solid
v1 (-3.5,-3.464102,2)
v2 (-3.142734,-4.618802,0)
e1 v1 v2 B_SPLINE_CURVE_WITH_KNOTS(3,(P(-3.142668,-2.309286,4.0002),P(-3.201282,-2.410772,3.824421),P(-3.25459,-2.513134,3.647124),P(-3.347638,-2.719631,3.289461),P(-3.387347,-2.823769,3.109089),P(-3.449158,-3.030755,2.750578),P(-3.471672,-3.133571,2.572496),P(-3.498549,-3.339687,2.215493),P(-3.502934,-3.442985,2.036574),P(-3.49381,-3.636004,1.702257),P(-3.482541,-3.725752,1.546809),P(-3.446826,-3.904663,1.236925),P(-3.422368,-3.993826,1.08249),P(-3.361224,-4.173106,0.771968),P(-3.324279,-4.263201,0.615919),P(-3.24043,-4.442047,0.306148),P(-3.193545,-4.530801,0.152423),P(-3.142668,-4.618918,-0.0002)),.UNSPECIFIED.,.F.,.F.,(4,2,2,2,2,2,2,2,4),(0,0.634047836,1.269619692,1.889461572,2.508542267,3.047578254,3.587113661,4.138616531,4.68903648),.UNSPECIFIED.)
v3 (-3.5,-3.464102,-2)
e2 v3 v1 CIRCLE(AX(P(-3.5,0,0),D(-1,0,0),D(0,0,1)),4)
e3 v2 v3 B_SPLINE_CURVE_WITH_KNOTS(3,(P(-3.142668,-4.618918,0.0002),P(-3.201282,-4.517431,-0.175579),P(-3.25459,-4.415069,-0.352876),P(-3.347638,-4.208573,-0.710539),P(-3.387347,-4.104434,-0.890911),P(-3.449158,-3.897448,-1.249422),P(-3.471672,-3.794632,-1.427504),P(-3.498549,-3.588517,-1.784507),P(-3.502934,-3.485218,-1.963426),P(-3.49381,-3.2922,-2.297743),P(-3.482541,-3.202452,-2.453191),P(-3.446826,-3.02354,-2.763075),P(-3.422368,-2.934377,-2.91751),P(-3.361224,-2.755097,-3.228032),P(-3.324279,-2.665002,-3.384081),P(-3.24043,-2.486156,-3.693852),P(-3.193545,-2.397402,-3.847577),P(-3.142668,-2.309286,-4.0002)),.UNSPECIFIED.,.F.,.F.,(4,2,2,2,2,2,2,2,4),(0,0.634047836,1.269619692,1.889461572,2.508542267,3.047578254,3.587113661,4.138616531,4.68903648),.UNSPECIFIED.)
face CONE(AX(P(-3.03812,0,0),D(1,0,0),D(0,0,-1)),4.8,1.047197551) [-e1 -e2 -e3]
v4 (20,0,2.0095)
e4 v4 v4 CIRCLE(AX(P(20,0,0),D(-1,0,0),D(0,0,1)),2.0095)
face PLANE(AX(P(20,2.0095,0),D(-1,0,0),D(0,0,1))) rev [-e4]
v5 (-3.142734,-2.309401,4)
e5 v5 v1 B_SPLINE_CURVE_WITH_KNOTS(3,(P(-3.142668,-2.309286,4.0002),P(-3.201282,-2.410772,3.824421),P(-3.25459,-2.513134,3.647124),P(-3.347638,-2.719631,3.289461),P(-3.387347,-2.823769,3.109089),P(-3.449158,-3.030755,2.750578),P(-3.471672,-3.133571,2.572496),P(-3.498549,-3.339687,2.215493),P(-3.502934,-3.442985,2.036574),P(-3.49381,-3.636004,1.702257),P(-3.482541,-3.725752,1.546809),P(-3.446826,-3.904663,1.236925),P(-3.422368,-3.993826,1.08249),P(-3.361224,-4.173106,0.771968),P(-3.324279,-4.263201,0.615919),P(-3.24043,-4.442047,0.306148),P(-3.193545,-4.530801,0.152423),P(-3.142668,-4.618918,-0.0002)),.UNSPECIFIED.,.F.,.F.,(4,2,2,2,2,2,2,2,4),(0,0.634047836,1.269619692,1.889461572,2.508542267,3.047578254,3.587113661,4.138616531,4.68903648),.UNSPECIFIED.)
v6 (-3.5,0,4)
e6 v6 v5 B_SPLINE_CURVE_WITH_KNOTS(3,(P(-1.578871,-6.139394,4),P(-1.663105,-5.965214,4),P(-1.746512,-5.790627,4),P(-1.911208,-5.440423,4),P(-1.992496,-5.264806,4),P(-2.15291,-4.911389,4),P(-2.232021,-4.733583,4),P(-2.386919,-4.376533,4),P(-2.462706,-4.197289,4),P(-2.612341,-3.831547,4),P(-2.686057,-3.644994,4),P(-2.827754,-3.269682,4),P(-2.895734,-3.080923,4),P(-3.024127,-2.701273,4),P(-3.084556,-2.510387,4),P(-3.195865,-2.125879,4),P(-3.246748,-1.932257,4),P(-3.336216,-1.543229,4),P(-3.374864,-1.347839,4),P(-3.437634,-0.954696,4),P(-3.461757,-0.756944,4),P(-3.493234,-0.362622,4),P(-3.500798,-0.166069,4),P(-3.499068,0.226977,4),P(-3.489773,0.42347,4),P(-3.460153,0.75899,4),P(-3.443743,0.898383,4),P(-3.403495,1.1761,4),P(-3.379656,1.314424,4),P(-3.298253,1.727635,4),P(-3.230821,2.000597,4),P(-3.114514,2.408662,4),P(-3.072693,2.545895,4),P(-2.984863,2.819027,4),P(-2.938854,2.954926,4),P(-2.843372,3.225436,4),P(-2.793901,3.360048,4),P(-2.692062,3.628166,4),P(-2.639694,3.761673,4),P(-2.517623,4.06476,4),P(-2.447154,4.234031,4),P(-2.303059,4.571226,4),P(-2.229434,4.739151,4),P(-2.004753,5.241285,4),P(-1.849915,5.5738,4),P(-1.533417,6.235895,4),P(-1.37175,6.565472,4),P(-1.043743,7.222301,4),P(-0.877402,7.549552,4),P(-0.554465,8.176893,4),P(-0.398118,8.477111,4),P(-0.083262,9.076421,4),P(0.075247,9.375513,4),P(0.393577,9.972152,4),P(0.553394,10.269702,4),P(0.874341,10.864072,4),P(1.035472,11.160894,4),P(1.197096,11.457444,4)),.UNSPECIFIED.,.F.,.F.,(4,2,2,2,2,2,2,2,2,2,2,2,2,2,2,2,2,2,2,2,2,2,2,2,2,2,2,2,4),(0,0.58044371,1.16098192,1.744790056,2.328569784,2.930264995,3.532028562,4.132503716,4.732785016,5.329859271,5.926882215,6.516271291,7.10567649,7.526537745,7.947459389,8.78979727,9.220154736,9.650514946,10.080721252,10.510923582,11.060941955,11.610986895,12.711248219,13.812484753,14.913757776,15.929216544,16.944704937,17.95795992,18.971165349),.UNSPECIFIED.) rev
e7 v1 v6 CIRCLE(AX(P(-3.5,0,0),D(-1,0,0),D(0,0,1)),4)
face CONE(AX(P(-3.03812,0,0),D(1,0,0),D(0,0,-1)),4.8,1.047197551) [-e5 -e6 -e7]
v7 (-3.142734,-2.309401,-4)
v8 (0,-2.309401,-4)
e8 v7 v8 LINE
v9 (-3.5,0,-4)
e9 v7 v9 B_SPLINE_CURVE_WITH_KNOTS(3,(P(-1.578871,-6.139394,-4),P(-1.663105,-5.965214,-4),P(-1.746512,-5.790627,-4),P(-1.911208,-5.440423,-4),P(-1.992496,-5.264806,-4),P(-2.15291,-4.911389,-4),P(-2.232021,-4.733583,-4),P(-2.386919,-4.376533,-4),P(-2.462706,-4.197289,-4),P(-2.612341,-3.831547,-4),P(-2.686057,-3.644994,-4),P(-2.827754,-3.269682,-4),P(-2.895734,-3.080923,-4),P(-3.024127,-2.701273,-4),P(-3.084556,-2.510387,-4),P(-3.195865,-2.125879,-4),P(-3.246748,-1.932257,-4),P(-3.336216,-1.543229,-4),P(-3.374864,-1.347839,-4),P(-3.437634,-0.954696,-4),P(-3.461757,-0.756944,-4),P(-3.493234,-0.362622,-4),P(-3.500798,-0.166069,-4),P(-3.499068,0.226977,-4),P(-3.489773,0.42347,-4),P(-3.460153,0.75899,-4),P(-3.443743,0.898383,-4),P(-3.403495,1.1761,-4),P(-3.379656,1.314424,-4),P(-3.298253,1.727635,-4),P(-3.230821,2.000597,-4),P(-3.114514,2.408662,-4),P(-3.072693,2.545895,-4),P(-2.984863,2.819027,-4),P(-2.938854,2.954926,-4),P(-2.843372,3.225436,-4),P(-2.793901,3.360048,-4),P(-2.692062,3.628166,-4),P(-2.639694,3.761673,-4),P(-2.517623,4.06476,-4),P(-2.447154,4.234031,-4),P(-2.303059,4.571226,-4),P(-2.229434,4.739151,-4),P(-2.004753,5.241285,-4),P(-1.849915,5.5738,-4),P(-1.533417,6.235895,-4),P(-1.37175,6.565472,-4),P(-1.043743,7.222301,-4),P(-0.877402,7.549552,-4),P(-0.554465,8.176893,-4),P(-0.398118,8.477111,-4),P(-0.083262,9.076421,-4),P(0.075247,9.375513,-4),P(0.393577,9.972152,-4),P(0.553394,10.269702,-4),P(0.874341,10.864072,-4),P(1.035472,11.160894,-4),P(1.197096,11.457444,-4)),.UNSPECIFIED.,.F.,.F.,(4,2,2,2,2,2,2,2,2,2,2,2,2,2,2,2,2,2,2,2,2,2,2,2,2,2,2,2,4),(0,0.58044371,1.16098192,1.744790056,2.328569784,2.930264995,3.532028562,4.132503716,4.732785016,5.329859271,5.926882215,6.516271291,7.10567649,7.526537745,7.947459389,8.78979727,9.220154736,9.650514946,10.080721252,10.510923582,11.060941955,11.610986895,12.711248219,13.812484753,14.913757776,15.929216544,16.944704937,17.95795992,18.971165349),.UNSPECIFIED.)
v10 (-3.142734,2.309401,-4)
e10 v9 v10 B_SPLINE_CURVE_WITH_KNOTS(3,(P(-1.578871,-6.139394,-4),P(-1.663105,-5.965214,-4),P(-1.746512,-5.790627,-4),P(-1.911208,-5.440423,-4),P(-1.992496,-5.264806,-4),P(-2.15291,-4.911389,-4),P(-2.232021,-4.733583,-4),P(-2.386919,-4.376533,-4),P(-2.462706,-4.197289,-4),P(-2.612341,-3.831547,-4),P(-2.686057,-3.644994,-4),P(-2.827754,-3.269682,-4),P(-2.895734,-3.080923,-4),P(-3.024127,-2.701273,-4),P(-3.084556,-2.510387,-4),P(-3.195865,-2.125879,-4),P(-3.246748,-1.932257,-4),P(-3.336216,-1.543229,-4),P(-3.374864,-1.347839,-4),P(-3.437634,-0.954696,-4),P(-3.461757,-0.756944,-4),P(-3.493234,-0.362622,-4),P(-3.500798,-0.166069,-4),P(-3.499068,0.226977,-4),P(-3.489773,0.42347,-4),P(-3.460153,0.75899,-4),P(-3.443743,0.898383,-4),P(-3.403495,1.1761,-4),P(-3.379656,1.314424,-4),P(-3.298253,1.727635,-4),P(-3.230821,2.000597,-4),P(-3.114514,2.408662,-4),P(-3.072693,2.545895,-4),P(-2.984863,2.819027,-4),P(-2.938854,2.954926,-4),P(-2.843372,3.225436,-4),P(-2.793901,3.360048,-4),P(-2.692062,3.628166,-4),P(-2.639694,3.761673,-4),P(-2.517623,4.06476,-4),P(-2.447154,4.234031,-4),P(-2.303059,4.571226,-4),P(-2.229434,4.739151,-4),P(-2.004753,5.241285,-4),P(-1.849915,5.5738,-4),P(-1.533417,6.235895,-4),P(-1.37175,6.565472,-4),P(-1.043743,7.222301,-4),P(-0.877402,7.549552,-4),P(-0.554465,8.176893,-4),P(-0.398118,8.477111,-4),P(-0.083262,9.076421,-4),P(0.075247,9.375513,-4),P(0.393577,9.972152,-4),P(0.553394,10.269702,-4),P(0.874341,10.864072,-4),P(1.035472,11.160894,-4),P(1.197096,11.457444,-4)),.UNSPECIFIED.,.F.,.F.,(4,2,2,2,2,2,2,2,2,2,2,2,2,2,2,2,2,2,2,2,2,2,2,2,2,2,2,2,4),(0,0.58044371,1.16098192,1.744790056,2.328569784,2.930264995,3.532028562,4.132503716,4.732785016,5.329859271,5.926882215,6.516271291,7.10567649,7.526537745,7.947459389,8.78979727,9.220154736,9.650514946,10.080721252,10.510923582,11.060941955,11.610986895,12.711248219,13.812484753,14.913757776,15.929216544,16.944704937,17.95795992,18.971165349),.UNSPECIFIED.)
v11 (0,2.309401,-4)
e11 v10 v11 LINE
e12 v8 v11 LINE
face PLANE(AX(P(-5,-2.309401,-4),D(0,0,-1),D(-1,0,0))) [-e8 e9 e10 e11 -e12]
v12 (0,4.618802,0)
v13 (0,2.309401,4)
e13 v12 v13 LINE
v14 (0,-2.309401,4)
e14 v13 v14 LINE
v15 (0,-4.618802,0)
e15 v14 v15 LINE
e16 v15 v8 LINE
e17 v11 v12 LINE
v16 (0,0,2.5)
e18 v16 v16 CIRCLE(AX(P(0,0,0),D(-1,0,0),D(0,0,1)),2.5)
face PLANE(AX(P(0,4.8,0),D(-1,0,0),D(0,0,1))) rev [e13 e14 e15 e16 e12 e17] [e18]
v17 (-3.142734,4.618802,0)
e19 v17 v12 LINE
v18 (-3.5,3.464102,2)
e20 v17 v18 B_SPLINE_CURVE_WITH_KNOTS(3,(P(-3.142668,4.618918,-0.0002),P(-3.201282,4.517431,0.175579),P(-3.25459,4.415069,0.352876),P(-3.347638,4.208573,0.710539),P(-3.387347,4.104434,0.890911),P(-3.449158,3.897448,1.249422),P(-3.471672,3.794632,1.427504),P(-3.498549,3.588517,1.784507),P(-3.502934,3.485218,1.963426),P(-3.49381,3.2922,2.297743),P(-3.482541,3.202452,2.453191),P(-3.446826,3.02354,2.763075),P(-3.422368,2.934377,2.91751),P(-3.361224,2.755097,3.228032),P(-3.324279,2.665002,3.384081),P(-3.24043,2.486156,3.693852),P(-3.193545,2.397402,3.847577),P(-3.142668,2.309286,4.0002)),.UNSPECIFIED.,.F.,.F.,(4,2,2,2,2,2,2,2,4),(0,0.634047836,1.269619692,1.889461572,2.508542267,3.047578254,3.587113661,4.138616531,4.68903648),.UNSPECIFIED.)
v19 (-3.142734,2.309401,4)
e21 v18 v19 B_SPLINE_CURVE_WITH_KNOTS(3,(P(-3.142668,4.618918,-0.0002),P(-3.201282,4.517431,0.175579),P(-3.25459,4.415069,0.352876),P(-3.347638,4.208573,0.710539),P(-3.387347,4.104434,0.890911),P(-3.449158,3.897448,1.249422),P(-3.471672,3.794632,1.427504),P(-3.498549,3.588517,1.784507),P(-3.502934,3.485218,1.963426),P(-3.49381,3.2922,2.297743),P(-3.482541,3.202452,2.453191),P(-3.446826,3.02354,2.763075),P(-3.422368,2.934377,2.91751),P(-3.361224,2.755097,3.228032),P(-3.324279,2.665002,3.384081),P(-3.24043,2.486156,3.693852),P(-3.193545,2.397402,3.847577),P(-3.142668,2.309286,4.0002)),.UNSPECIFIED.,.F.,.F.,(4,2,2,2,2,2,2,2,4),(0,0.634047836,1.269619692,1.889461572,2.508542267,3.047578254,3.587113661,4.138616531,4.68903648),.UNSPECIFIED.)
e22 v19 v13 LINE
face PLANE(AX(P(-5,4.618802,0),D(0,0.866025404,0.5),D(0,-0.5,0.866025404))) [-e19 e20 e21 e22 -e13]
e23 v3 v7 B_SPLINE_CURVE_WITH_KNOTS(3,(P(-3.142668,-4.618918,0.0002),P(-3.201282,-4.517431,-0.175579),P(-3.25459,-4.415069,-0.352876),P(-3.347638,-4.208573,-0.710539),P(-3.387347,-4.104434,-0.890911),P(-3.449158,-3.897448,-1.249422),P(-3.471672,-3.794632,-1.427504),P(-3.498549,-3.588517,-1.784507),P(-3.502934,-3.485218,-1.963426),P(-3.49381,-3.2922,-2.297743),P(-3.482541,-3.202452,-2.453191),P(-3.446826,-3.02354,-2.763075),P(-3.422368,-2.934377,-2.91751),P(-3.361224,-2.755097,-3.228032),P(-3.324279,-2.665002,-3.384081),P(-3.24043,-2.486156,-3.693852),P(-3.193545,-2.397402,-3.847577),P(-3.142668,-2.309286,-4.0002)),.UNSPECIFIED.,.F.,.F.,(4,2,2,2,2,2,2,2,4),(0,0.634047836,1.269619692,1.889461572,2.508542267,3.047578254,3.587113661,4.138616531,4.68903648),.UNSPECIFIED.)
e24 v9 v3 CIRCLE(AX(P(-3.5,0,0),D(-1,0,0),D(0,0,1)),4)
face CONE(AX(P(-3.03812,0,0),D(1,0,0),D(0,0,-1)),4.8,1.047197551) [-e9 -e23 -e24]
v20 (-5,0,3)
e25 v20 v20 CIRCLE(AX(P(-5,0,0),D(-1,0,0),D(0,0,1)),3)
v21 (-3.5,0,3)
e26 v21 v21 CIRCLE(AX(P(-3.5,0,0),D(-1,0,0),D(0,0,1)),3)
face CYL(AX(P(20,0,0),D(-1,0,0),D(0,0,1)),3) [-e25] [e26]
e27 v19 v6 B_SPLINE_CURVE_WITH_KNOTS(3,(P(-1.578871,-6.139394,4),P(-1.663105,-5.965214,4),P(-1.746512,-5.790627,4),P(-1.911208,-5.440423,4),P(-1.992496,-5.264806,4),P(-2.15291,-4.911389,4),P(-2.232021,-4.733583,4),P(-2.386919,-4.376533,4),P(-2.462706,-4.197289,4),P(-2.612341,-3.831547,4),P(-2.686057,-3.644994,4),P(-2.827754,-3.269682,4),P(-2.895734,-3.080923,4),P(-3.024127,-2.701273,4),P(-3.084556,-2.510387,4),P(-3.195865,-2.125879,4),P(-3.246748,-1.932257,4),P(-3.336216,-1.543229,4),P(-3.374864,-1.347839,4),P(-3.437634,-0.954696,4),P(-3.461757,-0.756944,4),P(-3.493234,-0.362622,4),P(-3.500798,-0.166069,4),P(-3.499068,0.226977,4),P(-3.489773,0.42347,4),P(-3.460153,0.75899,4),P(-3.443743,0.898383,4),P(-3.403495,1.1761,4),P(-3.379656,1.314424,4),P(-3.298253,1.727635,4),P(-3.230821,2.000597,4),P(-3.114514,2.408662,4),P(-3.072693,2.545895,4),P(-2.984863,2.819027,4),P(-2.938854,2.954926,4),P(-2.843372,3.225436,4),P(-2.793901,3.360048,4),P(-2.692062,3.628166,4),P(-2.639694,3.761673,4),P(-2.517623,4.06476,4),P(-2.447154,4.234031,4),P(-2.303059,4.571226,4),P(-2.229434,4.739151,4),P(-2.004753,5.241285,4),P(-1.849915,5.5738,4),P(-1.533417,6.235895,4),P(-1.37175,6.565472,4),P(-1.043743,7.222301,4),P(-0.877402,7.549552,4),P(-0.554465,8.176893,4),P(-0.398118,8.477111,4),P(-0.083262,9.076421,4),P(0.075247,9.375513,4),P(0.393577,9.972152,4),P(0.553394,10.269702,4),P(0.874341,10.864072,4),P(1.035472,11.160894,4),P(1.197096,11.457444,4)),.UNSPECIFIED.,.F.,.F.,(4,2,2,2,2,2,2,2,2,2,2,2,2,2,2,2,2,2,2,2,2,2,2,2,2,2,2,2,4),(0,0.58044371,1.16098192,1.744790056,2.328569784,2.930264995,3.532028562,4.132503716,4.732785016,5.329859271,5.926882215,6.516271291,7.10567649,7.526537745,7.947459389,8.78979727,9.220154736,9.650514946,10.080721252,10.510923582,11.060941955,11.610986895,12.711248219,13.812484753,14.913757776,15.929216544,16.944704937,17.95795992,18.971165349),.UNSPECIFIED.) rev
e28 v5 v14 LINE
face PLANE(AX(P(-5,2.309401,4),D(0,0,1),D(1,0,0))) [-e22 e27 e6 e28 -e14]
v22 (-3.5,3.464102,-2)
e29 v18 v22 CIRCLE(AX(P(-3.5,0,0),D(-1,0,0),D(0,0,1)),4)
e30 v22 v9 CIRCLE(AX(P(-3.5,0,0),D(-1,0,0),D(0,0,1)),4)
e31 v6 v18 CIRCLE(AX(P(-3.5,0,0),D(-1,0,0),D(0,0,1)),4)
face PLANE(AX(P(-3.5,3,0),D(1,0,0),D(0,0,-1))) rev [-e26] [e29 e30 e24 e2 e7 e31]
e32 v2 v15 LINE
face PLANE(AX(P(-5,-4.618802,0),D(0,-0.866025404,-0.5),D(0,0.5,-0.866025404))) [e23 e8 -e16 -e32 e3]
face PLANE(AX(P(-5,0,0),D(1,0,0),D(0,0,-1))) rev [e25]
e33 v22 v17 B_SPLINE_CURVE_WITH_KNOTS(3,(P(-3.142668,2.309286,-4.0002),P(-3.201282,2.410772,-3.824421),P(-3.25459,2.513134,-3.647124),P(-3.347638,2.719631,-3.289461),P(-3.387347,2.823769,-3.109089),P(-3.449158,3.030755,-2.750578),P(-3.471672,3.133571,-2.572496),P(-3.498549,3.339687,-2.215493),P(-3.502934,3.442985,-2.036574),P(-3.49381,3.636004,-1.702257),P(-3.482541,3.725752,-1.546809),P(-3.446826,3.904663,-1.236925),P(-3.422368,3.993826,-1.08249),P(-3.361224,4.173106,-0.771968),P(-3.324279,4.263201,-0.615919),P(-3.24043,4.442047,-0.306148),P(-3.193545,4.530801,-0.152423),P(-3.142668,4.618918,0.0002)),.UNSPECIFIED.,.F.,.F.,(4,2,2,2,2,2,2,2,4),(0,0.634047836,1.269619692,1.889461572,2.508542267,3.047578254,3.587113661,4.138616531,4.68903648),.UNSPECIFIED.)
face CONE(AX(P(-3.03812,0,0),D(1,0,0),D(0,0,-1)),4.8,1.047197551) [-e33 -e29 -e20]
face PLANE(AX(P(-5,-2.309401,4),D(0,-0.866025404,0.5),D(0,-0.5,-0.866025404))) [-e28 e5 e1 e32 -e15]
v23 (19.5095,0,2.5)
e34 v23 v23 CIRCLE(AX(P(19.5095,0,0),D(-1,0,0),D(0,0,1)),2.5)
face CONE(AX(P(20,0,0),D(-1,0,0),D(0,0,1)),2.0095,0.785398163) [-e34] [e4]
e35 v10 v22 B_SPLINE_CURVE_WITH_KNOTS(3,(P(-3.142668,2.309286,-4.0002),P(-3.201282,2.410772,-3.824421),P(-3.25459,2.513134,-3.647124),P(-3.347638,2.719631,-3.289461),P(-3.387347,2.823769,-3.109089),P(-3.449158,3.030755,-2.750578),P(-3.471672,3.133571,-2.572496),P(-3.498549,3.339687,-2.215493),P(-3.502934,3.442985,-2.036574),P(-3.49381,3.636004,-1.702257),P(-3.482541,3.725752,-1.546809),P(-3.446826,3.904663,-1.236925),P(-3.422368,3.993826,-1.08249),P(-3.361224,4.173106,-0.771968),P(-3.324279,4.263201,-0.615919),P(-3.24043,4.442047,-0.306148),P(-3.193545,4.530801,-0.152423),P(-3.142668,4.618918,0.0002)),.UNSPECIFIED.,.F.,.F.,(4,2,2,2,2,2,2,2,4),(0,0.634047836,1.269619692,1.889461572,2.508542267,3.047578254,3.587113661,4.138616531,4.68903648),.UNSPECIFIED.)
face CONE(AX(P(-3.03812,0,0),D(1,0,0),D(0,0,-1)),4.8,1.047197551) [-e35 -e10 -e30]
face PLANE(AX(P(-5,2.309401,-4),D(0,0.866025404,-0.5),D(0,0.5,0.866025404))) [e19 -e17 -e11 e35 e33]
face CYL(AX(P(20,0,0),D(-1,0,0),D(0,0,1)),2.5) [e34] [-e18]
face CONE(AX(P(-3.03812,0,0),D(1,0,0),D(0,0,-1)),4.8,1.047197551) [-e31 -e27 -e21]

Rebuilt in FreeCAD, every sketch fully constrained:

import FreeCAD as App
import Part
import Sketcher
Q = App.Units.Quantity

doc = App.newDocument("Part")
body = doc.addObject("PartDesign::Body", "Body")

# Sketch on XY plane
sketch1 = body.newObject("Sketcher::SketchObject", "Sketch")
sketch1.AttachmentSupport = (doc.getObject("XY_Plane"), [""])
sketch1.MapMode = "FlatFace"
sketch1.addGeometry(Part.LineSegment(App.Vector(-5, 3, 0), App.Vector(-5, 0, 0)), False)
sketch1.addGeometry(Part.LineSegment(App.Vector(-5, 0, 0), App.Vector(20, 0, 0)), False)
sketch1.addGeometry(Part.LineSegment(App.Vector(20, 0, 0), App.Vector(20, 2, 0)), False)
sketch1.addGeometry(Part.LineSegment(App.Vector(20, 2, 0), App.Vector(19.5, 2.5, 0)), False)
sketch1.addGeometry(Part.LineSegment(App.Vector(19.5, 2.5, 0), App.Vector(0, 2.5, 0)), False)
sketch1.addGeometry(Part.LineSegment(App.Vector(0, 2.5, 0), App.Vector(0, 4.8, 0)), False)
sketch1.addGeometry(Part.LineSegment(App.Vector(0, 4.8, 0), App.Vector(-3, 4.8, 0)), False)
sketch1.addGeometry(Part.LineSegment(App.Vector(-3, 4.8, 0), App.Vector(-3.5, 4, 0)), False)
sketch1.addGeometry(Part.LineSegment(App.Vector(-3.5, 4, 0), App.Vector(-3.5, 3, 0)), False)
sketch1.addGeometry(Part.LineSegment(App.Vector(-3.5, 3, 0), App.Vector(-5, 3, 0)), False)
sketch1.addConstraint(Sketcher.Constraint("Coincident", 0, 2, 1, 1))
sketch1.addConstraint(Sketcher.Constraint("Coincident", 1, 2, 2, 1))
sketch1.addConstraint(Sketcher.Constraint("Coincident", 2, 2, 3, 1))
sketch1.addConstraint(Sketcher.Constraint("Coincident", 3, 2, 4, 1))
sketch1.addConstraint(Sketcher.Constraint("Coincident", 4, 2, 5, 1))
sketch1.addConstraint(Sketcher.Constraint("Coincident", 5, 2, 6, 1))
sketch1.addConstraint(Sketcher.Constraint("Coincident", 6, 2, 7, 1))
sketch1.addConstraint(Sketcher.Constraint("Coincident", 7, 2, 8, 1))
sketch1.addConstraint(Sketcher.Constraint("Coincident", 8, 2, 9, 1))
sketch1.addConstraint(Sketcher.Constraint("Coincident", 9, 2, 0, 1))
sketch1.addConstraint(Sketcher.Constraint("Vertical", 0))
sketch1.addConstraint(Sketcher.Constraint("Horizontal", 1))
sketch1.addConstraint(Sketcher.Constraint("Vertical", 2))
sketch1.addConstraint(Sketcher.Constraint("Horizontal", 4))
sketch1.addConstraint(Sketcher.Constraint("Vertical", 5))
sketch1.addConstraint(Sketcher.Constraint("Horizontal", 6))
sketch1.addConstraint(Sketcher.Constraint("Vertical", 8))
sketch1.addConstraint(Sketcher.Constraint("Horizontal", 9))
sketch1.addConstraint(Sketcher.Constraint("PointOnObject", 0, 2, -1))
sketch1.addConstraint(Sketcher.Constraint("PointOnObject", 4, 2, -2))
sketch1.addConstraint(Sketcher.Constraint("DistanceX", 1, 1, 1, 2, Q("25 mm")))
sketch1.addConstraint(Sketcher.Constraint("DistanceY", 0, 2, 0, 1, Q("3 mm")))
sketch1.addConstraint(Sketcher.Constraint("DistanceY", 8, 2, 8, 1, Q("1 mm")))
sketch1.addConstraint(Sketcher.Constraint("Angle", 3, Q("135 deg")))
sketch1.addConstraint(Sketcher.Constraint("Angle", 7, Q("-120 deg")))
sketch1.addConstraint(Sketcher.Constraint("DistanceX", 9, 2, 9, 1, Q("1.5 mm")))
sketch1.addConstraint(Sketcher.Constraint("DistanceY", 5, 1, 5, 2, Q("2.3 mm")))
sketch1.addConstraint(Sketcher.Constraint("DistanceX", 0, 2, -1, 1, Q("5 mm")))
sketch1.addConstraint(Sketcher.Constraint("DistanceY", -1, 1, 3, 2, Q("2.5 mm")))
sketch1.addConstraint(Sketcher.Constraint("DistanceX", 4, 2, 4, 1, Q("19.5095 mm")))
revolution = body.newObject("PartDesign::Revolution", "Revolution")
revolution.Profile = sketch1
revolution.ReferenceAxis = (sketch1, ["H_Axis"])
revolution.Angle = 360

# Sketch on YZ plane
sketch2 = body.newObject("Sketcher::SketchObject", "Sketch001")
sketch2.AttachmentSupport = (doc.getObject("YZ_Plane"), [""])
sketch2.MapMode = "FlatFace"
sketch2.addGeometry(Part.LineSegment(App.Vector(9.2, 9.2, 0), App.Vector(-9.2, 9.2, 0)), False)
sketch2.addGeometry(Part.LineSegment(App.Vector(-9.2, 9.2, 0), App.Vector(-9.2, -9.2, 0)), False)
sketch2.addGeometry(Part.LineSegment(App.Vector(-9.2, -9.2, 0), App.Vector(9.2, -9.2, 0)), False)
sketch2.addGeometry(Part.LineSegment(App.Vector(9.2, -9.2, 0), App.Vector(9.2, 9.2, 0)), False)
sketch2.addGeometry(Part.LineSegment(App.Vector(-2.3, 4, 0), App.Vector(2.3, 4, 0)), False)
sketch2.addGeometry(Part.LineSegment(App.Vector(2.3, 4, 0), App.Vector(4.6, 0, 0)), False)
sketch2.addGeometry(Part.LineSegment(App.Vector(4.6, 0, 0), App.Vector(2.3, -4, 0)), False)
sketch2.addGeometry(Part.LineSegment(App.Vector(2.3, -4, 0), App.Vector(-2.3, -4, 0)), False)
sketch2.addGeometry(Part.LineSegment(App.Vector(-2.3, -4, 0), App.Vector(-4.6, 0, 0)), False)
sketch2.addGeometry(Part.LineSegment(App.Vector(-4.6, 0, 0), App.Vector(-2.3, 4, 0)), False)
sketch2.addConstraint(Sketcher.Constraint("Coincident", 0, 2, 1, 1))
sketch2.addConstraint(Sketcher.Constraint("Coincident", 1, 2, 2, 1))
sketch2.addConstraint(Sketcher.Constraint("Coincident", 2, 2, 3, 1))
sketch2.addConstraint(Sketcher.Constraint("Coincident", 3, 2, 0, 1))
sketch2.addConstraint(Sketcher.Constraint("Coincident", 4, 2, 5, 1))
sketch2.addConstraint(Sketcher.Constraint("Coincident", 5, 2, 6, 1))
sketch2.addConstraint(Sketcher.Constraint("Coincident", 6, 2, 7, 1))
sketch2.addConstraint(Sketcher.Constraint("Coincident", 7, 2, 8, 1))
sketch2.addConstraint(Sketcher.Constraint("Coincident", 8, 2, 9, 1))
sketch2.addConstraint(Sketcher.Constraint("Coincident", 9, 2, 4, 1))
sketch2.addConstraint(Sketcher.Constraint("Horizontal", 0))
sketch2.addConstraint(Sketcher.Constraint("Vertical", 1))
sketch2.addConstraint(Sketcher.Constraint("Horizontal", 2))
sketch2.addConstraint(Sketcher.Constraint("Vertical", 3))
sketch2.addConstraint(Sketcher.Constraint("Horizontal", 4))
sketch2.addConstraint(Sketcher.Constraint("Horizontal", 7))
sketch2.addConstraint(Sketcher.Constraint("Symmetric", 0, 2, 2, 2, -1, 1))
sketch2.addConstraint(Sketcher.Constraint("Symmetric", 4, 2, 7, 2, -1, 1))
sketch2.addConstraint(Sketcher.Constraint("Symmetric", 5, 2, 8, 2, -1, 1))
sketch2.addConstraint(Sketcher.Constraint("PointOnObject", 5, 2, -1))
sketch2.addConstraint(Sketcher.Constraint("Parallel", 6, 9))
sketch2.addConstraint(Sketcher.Constraint("Vertical", 4, 2, 6, 2))
sketch2.addConstraint(Sketcher.Constraint("Equal", 2, 1))
sketch2.addConstraint(Sketcher.Constraint("Angle", 5, Q("-60 deg")))
sketch2.addConstraint(Sketcher.Constraint("DistanceX", 0, 2, 0, 1, Q("18.4 mm")))
sketch2.addConstraint(Sketcher.Constraint("DistanceY", -1, 1, 4, 2, Q("4 mm")))
sketch2.addConstraint(Sketcher.Constraint("DistanceX", -1, 1, 4, 2, Q("2.309401 mm")))
pocket1 = body.newObject("PartDesign::Pocket", "Pocket")
pocket1.Profile = sketch2
pocket1.Length = 5

doc.recompute()
